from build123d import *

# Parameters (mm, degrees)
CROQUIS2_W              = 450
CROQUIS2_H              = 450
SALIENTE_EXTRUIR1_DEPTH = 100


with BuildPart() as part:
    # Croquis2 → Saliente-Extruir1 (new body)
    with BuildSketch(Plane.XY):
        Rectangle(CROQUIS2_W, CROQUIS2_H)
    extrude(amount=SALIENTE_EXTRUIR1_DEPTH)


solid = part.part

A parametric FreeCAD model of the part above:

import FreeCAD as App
import Part
import Sketcher

V = App.Vector


def add_polygon(sketch, points):
    """Adds a closed chain of lines whose ends are joined by coincident constraints."""
    first, n = sketch.GeometryCount, len(points)
    for a, b in zip(points, points[1:] + points[:1]):
        sketch.addGeometry(Part.LineSegment(App.Vector(*a, 0), App.Vector(*b, 0)), False)
    for i in range(n):
        sketch.addConstraint(Sketcher.Constraint("Coincident", first + i, 2, first + (i + 1) % n, 1))

doc = App.newDocument("Part")
params = doc.addObject("Spreadsheet::Sheet", "Params")
for row, (alias, value) in enumerate([
    ("sketch1_width", "450 mm"),
    ("pad1_length", "100 mm"),
], start=1):
    params.set(f"A{row}", alias)
    params.set(f"B{row}", "=" + value)
    params.setAlias(f"B{row}", alias)

body = doc.addObject("PartDesign::Body", "Body")

# Sketch on XY plane
sketch1 = doc.addObject("Sketcher::SketchObject", "Sketch")
body.addObject(sketch1)
sketch1.AttachmentSupport = (doc.XY_Plane, [""])
sketch1.MapMode = "FlatFace"
add_polygon(sketch1, [(-225, 225), (-225, -225), (225, -225), (225, 225)])  # lines 0-3
sketch1.addConstraint(Sketcher.Constraint("Vertical", 0))
sketch1.addConstraint(Sketcher.Constraint("Horizontal", 1))
sketch1.addConstraint(Sketcher.Constraint("Vertical", 2))
sketch1.addConstraint(Sketcher.Constraint("Horizontal", 3))
sketch1.addConstraint(Sketcher.Constraint("Symmetric", 0, 2, 2, 2, -1, 1))
sketch1.addConstraint(Sketcher.Constraint("Equal", 3, 0))
sketch1.addConstraint(Sketcher.Constraint("DistanceX", 1, 1, 1, 2, 450.0))
sketch1.setExpression("Constraints[10]", "Params.sketch1_width")
pad1 = doc.addObject("PartDesign::Pad", "Pad")
body.addObject(pad1)
pad1.Profile = sketch1
pad1.setExpression("Length", "Params.pad1_length")

doc.recompute()
